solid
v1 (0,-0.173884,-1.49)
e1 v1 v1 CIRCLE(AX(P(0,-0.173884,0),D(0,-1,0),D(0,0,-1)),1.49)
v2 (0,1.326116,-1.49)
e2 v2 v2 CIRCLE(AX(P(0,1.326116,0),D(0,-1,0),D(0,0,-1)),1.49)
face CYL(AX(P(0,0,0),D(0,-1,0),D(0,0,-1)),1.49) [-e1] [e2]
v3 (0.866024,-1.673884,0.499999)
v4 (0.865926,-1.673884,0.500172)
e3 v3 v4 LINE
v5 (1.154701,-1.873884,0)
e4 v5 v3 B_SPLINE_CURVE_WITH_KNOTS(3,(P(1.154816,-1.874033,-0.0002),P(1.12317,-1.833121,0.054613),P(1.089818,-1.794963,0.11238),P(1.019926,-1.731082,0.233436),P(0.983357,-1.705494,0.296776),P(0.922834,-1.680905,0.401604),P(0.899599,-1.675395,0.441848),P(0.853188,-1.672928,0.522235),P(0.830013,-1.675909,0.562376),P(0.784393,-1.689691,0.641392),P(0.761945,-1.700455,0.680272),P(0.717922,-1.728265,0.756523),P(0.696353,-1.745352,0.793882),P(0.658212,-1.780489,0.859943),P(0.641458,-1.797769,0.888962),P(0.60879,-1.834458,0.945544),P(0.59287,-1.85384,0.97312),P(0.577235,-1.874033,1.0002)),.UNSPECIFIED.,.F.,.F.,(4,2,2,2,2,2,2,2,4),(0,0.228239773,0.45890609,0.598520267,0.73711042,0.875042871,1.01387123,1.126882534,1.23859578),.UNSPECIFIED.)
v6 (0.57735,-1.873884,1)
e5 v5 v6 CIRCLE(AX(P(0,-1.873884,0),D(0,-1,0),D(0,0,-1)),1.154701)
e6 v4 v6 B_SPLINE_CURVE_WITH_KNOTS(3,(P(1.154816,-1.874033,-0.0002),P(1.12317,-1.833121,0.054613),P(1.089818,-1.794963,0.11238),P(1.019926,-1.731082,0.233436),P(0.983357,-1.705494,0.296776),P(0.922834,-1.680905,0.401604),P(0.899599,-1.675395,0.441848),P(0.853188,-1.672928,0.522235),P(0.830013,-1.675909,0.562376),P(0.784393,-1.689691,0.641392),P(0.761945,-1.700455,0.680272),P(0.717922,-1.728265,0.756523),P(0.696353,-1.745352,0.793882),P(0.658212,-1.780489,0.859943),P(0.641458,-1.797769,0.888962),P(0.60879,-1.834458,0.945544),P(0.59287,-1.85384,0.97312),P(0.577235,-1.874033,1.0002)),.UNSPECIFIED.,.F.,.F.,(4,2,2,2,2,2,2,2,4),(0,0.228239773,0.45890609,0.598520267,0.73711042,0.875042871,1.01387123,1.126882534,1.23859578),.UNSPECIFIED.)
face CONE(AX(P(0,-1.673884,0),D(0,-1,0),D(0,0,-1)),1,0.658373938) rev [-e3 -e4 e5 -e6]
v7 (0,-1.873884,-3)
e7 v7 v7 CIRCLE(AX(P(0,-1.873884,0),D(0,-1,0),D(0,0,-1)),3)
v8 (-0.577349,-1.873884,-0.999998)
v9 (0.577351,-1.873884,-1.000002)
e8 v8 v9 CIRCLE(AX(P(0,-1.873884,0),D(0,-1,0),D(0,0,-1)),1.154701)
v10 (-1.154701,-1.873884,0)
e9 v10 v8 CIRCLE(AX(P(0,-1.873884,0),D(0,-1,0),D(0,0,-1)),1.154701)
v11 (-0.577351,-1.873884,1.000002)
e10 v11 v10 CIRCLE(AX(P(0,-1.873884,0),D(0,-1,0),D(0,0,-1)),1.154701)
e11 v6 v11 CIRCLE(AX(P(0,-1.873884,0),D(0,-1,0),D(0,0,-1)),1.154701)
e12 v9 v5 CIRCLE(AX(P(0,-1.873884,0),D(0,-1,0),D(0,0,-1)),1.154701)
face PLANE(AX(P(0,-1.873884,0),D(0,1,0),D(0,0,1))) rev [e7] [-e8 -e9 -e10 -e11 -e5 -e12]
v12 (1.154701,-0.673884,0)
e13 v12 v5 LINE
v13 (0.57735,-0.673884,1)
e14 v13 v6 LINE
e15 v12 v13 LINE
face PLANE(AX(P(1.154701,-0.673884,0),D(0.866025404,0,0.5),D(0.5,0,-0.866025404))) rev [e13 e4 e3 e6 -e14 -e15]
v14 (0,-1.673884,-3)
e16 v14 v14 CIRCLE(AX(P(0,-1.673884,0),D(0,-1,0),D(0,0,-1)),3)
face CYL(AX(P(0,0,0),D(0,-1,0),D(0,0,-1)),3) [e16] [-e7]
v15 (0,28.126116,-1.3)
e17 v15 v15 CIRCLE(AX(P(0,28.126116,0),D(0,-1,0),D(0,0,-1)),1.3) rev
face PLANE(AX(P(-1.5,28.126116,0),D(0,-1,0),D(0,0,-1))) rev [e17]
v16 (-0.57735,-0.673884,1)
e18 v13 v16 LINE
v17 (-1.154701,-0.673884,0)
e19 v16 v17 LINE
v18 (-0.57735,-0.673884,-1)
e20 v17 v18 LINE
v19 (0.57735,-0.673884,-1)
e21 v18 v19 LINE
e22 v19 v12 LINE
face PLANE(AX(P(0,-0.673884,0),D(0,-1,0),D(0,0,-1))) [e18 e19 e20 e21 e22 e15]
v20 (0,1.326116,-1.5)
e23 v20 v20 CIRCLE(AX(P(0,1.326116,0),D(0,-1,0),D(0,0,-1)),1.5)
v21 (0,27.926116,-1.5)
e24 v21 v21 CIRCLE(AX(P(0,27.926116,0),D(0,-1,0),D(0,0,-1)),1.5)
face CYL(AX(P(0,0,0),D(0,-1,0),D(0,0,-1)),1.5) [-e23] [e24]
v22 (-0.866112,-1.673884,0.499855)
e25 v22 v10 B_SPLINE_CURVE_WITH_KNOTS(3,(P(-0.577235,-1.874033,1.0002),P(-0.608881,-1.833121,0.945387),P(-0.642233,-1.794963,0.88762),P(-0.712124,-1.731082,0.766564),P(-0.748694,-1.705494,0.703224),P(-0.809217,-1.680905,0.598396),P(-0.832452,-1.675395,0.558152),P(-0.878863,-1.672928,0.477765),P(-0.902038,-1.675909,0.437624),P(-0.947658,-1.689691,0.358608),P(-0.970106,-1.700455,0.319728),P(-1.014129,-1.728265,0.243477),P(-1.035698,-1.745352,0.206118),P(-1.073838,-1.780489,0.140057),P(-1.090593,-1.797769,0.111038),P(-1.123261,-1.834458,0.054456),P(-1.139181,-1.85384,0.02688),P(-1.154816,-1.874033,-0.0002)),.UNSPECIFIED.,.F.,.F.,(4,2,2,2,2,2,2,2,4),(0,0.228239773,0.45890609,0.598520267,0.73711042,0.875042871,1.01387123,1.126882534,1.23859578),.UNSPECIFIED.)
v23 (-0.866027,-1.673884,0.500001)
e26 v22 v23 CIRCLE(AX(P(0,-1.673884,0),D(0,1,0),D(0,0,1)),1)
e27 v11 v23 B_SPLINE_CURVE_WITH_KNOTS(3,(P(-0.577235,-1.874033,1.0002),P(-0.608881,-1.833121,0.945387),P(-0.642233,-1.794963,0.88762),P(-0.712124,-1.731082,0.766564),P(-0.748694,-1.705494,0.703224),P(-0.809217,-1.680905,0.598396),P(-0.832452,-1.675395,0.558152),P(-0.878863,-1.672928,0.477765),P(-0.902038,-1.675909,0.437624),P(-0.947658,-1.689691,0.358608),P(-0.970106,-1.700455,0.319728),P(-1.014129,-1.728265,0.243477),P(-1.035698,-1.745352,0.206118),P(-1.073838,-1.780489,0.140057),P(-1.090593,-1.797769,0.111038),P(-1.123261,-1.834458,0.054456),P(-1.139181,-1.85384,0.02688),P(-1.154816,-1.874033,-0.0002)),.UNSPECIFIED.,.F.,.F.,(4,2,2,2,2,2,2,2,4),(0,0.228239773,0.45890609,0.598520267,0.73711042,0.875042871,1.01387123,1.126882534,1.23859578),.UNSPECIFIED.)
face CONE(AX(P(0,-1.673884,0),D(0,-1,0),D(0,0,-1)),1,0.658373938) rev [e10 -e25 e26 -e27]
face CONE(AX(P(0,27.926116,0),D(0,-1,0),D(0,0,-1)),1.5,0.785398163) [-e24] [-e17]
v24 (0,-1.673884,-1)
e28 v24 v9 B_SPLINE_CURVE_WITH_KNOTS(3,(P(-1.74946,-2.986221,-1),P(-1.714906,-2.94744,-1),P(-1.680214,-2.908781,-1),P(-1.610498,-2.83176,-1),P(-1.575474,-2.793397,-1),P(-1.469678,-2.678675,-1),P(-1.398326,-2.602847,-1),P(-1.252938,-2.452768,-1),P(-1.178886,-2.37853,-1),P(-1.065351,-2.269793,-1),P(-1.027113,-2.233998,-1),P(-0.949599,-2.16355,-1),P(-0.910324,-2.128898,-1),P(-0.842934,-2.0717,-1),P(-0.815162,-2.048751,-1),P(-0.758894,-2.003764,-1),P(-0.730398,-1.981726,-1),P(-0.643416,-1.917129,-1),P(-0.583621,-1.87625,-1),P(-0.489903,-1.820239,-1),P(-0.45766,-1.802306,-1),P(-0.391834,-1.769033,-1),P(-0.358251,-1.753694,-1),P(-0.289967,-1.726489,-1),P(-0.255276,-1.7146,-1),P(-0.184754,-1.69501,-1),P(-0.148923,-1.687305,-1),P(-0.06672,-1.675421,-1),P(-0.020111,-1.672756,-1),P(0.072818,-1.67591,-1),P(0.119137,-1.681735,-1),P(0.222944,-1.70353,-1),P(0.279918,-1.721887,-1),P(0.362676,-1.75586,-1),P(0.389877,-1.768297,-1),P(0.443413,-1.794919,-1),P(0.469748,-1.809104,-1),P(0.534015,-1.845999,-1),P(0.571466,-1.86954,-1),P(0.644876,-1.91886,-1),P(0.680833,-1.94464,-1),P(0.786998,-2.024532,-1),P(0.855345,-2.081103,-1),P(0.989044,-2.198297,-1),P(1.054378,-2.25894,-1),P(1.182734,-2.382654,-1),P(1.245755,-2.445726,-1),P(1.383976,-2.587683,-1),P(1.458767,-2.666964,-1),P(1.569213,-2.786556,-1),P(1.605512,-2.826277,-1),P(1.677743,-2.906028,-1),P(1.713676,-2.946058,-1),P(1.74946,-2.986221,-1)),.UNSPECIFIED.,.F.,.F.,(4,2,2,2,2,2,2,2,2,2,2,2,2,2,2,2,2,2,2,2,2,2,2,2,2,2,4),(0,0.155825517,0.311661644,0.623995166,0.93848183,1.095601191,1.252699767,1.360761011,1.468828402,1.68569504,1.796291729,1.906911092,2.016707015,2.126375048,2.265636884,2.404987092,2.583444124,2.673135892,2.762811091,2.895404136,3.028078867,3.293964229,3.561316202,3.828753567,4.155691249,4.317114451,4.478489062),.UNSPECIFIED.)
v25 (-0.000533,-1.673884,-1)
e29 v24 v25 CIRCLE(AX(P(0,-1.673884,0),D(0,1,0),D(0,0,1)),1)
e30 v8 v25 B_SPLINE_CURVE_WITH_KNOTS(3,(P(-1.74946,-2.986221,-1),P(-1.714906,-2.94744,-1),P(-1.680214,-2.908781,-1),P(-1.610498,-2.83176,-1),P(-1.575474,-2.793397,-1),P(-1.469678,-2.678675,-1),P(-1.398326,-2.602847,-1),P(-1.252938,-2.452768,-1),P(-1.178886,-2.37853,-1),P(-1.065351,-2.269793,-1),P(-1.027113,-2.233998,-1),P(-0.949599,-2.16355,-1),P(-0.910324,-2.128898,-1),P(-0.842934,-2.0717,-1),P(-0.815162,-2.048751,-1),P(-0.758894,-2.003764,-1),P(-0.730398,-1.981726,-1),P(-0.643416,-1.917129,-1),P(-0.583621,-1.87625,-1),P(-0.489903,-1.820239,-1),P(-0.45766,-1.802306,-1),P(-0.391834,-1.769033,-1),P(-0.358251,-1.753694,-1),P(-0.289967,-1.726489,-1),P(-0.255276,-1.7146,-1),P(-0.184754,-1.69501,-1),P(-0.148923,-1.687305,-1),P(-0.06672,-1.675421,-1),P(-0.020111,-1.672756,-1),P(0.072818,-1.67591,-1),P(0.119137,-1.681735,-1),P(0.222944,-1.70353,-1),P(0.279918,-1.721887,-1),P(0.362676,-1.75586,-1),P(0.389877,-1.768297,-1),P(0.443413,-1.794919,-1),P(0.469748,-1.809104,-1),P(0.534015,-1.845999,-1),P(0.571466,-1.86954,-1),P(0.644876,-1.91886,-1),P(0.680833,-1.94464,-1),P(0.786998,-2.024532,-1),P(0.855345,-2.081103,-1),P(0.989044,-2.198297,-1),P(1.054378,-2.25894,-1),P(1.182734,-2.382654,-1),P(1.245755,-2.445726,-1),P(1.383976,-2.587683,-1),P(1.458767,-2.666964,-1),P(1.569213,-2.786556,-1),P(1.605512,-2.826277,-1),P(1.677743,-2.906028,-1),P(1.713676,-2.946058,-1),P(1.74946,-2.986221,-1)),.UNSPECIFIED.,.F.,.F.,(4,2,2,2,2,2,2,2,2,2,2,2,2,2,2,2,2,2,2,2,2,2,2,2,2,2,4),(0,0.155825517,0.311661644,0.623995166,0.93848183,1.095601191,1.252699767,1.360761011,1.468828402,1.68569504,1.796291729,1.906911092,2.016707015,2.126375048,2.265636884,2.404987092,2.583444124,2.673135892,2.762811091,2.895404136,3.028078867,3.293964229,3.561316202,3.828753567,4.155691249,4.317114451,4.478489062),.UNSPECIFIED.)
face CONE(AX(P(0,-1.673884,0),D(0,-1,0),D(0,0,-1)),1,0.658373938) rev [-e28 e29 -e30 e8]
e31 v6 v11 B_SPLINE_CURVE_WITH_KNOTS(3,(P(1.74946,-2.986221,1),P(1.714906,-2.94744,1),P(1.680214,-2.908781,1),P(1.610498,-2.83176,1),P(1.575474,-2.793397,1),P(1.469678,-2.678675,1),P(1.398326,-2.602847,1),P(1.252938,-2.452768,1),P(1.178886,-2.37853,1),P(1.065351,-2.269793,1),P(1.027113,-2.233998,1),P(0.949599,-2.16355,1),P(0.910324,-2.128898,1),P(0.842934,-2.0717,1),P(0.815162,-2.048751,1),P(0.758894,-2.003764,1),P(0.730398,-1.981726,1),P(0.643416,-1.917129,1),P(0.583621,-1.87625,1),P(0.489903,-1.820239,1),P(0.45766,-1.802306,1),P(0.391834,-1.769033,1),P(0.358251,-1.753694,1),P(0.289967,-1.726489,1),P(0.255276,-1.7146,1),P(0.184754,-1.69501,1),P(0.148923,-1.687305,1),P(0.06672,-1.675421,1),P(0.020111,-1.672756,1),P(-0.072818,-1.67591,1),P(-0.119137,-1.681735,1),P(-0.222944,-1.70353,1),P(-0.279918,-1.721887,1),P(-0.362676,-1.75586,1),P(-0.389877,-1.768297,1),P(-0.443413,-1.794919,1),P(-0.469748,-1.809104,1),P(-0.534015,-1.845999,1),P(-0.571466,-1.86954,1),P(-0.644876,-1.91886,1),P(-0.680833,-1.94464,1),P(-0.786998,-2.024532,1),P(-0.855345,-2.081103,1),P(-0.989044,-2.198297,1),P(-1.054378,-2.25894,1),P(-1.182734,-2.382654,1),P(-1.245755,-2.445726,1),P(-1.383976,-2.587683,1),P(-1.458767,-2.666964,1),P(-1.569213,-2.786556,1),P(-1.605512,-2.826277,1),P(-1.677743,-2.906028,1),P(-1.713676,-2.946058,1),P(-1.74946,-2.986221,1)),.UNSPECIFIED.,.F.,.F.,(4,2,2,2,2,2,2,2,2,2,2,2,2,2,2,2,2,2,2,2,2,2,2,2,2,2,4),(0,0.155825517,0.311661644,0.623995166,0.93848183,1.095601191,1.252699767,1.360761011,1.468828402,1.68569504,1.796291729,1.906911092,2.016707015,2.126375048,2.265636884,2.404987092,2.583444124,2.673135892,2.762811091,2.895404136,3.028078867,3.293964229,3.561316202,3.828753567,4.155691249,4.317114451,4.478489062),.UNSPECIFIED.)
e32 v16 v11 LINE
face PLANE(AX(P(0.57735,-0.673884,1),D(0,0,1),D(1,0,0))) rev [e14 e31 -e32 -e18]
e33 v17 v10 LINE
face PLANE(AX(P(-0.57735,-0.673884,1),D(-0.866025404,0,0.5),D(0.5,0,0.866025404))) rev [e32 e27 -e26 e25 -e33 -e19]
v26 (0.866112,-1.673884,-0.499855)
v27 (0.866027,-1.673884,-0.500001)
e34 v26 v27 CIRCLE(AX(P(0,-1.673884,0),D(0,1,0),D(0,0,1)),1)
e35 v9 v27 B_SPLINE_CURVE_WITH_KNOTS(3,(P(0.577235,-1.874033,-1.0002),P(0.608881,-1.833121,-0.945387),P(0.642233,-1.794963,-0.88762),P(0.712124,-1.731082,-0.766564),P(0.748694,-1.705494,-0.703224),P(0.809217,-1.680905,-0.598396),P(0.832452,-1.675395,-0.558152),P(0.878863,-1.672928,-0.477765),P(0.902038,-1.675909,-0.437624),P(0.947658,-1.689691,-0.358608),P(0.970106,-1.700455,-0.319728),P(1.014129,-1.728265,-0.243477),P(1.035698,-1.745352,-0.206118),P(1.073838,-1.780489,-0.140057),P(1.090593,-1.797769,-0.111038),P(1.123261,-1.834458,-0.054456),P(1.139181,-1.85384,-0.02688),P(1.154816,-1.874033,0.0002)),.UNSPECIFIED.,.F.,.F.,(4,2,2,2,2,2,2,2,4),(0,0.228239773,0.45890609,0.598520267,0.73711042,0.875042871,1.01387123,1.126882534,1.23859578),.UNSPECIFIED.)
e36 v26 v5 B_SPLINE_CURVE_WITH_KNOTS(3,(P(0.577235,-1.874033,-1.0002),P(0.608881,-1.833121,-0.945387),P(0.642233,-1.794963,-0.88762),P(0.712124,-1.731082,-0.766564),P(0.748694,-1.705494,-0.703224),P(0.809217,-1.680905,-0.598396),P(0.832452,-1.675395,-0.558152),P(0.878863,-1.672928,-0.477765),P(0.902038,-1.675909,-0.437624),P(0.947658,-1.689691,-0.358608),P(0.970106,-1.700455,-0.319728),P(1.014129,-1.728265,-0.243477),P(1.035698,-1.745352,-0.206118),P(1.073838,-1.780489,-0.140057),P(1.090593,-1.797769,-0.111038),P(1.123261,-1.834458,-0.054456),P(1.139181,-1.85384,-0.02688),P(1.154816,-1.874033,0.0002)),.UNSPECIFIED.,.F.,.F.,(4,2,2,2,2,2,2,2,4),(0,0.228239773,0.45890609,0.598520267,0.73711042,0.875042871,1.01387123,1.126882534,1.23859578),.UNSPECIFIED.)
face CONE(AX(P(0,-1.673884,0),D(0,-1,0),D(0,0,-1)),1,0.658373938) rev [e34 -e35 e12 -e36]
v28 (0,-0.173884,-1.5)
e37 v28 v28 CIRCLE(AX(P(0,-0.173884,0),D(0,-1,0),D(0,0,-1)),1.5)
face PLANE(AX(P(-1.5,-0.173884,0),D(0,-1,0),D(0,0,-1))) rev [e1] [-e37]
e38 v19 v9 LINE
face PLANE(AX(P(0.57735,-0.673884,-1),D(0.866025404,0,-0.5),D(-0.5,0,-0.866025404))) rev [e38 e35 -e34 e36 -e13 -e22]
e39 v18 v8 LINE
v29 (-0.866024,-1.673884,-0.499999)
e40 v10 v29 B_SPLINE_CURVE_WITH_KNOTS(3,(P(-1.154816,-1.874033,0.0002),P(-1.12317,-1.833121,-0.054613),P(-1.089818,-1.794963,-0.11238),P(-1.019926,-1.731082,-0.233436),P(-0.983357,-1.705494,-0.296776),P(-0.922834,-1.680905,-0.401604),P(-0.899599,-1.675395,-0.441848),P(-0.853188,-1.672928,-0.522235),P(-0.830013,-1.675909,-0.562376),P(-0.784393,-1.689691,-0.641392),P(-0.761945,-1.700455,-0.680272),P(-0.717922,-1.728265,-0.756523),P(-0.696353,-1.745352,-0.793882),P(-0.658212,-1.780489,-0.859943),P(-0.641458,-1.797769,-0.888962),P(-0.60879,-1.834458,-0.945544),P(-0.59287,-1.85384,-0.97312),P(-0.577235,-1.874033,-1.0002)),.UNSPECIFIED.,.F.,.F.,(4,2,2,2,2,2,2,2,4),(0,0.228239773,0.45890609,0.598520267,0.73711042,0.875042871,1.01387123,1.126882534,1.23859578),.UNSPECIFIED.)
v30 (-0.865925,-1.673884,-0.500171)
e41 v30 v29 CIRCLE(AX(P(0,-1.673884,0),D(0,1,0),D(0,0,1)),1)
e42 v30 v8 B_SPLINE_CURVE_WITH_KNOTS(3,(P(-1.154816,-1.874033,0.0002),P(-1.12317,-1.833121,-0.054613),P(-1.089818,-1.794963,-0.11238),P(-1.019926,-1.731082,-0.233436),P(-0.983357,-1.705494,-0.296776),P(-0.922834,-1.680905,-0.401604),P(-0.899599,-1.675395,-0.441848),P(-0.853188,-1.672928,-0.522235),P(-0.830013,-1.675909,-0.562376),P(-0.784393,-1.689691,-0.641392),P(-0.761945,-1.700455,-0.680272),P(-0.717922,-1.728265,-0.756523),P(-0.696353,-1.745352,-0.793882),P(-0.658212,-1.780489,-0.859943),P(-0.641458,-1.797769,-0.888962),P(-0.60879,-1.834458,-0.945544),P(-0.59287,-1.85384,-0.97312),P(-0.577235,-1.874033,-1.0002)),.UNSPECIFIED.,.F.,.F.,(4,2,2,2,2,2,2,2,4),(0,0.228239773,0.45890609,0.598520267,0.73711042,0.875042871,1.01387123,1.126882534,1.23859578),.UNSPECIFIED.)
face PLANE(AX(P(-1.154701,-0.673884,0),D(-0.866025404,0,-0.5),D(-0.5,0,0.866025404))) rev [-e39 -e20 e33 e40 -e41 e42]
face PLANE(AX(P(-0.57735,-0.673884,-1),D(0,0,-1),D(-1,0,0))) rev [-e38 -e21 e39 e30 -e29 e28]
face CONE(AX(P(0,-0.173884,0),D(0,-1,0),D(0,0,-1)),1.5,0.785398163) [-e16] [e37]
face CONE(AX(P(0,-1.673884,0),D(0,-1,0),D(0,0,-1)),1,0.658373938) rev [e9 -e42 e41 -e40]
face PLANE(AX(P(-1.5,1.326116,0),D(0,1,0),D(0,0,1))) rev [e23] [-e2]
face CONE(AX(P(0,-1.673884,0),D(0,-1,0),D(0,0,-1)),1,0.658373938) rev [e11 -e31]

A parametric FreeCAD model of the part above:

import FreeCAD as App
import Part
import Sketcher

V = App.Vector
Q = App.Units.Quantity


def edges_at(feature, points):
    """Names of the edges that pass closest to the given points."""
    edges = feature.Shape.Edges
    near = lambda p: min(range(len(edges)), key=lambda i: edges[i].distToShape(Part.Vertex(*p))[0])
    return sorted({f"Edge{near(p) + 1}" for p in points})

doc = App.newDocument("Part")
body = doc.addObject("PartDesign::Body", "Body")

# Sketch on XY plane
sketch1 = doc.addObject("Sketcher::SketchObject", "Sketch")
body.addObject(sketch1)
sketch1.AttachmentSupport = (doc.XY_Plane, [""])
sketch1.MapMode = "FlatFace"
sketch1.addGeometry(Part.LineSegment(V(-3, -1.873884, 0), V(0, -1.873884, 0)), False)
sketch1.addGeometry(Part.LineSegment(V(0, -1.873884, 0), V(0, 28.126116, 0)), False)
sketch1.addGeometry(Part.LineSegment(V(0, 28.126116, 0), V(-1.5, 28.126116, 0)), False)
sketch1.addGeometry(Part.LineSegment(V(-1.5, 28.126116, 0), V(-1.5, 1.326116, 0)), False)
sketch1.addGeometry(Part.LineSegment(V(-1.5, 1.326116, 0), V(-1.49, 1.326116, 0)), False)
sketch1.addGeometry(Part.LineSegment(V(-1.49, 1.326116, 0), V(-1.49, -0.173884, 0)), False)
sketch1.addGeometry(Part.LineSegment(V(-1.49, -0.173884, 0), V(-1.5, -0.173884, 0)), False)
sketch1.addGeometry(Part.LineSegment(V(-1.5, -0.173884, 0), V(-3, -1.673884, 0)), False)
sketch1.addGeometry(Part.LineSegment(V(-3, -1.673884, 0), V(-3, -1.873884, 0)), False)
sketch1.addConstraint(Sketcher.Constraint("Coincident", 0, 2, 1, 1))
sketch1.addConstraint(Sketcher.Constraint("Coincident", 1, 2, 2, 1))
sketch1.addConstraint(Sketcher.Constraint("Coincident", 2, 2, 3, 1))
sketch1.addConstraint(Sketcher.Constraint("Coincident", 3, 2, 4, 1))
sketch1.addConstraint(Sketcher.Constraint("Coincident", 4, 2, 5, 1))
sketch1.addConstraint(Sketcher.Constraint("Coincident", 5, 2, 6, 1))
sketch1.addConstraint(Sketcher.Constraint("Coincident", 6, 2, 7, 1))
sketch1.addConstraint(Sketcher.Constraint("Coincident", 7, 2, 8, 1))
sketch1.addConstraint(Sketcher.Constraint("Coincident", 8, 2, 0, 1))
sketch1.addConstraint(Sketcher.Constraint("Horizontal", 0))
sketch1.addConstraint(Sketcher.Constraint("Vertical", 1))
sketch1.addConstraint(Sketcher.Constraint("Horizontal", 2))
sketch1.addConstraint(Sketcher.Constraint("Vertical", 3))
sketch1.addConstraint(Sketcher.Constraint("Horizontal", 4))
sketch1.addConstraint(Sketcher.Constraint("Vertical", 5))
sketch1.addConstraint(Sketcher.Constraint("Horizontal", 6))
sketch1.addConstraint(Sketcher.Constraint("Vertical", 8))
sketch1.addConstraint(Sketcher.Constraint("PointOnObject", 0, 2, -2))
sketch1.addConstraint(Sketcher.Constraint("Vertical", 3, 2, 6, 2))
sketch1.addConstraint(Sketcher.Constraint("Equal", 2, 5))
sketch1.addConstraint(Sketcher.Constraint("DistanceX", 0, 1, 0, 2, 3.0))
sketch1.addConstraint(Sketcher.Constraint("DistanceY", 1, 1, 1, 2, 30.0))
sketch1.addConstraint(Sketcher.Constraint("Angle", 7, Q("-135 deg")))
sketch1.addConstraint(Sketcher.Constraint("DistanceX", 2, 2, 2, 1, 1.5))
sketch1.addConstraint(Sketcher.Constraint("DistanceY", 3, 2, 3, 1, 26.8))
sketch1.addConstraint(Sketcher.Constraint("DistanceX", 4, 1, 4, 2, 0.01))
sketch1.addConstraint(Sketcher.Constraint("DistanceY", 0, 2, -1, 1, 1.873884))
revolution = doc.addObject("PartDesign::Revolution", "Revolution")
body.addObject(revolution)
revolution.Profile = sketch1
revolution.ReferenceAxis = (sketch1, ["V_Axis"])
revolution.Angle = 360
doc.recompute()

chamfer = doc.addObject("PartDesign::Chamfer", "Chamfer")
body.addObject(chamfer)
chamfer.Base = (revolution, edges_at(revolution, [(1.5, 28.126, 0)]))
chamfer.Size = 0.2

# Sketch on XZ plane
sketch2 = doc.addObject("Sketcher::SketchObject", "Sketch001")
body.addObject(sketch2)
sketch2.AttachmentSupport = (doc.XZ_Plane, [""])
sketch2.MapMode = "FlatFace"
sketch2.AttachmentOffset = App.Placement(V(0, 0, 1.873884), App.Rotation())
sketch2.addGeometry(Part.LineSegment(V(1.154701, 0, 0), V(0.57735, 1, 0)), False)
sketch2.addGeometry(Part.LineSegment(V(0.57735, 1, 0), V(-0.57735, 1, 0)), False)
sketch2.addGeometry(Part.LineSegment(V(-0.57735, 1, 0), V(-1.154701, 0, 0)), False)
sketch2.addGeometry(Part.LineSegment(V(-1.154701, 0, 0), V(-0.57735, -1, 0)), False)
sketch2.addGeometry(Part.LineSegment(V(-0.57735, -1, 0), V(0.57735, -1, 0)), False)
sketch2.addGeometry(Part.LineSegment(V(0.57735, -1, 0), V(1.154701, 0, 0)), False)
sketch2.addConstraint(Sketcher.Constraint("Coincident", 0, 2, 1, 1))
sketch2.addConstraint(Sketcher.Constraint("Coincident", 1, 2, 2, 1))
sketch2.addConstraint(Sketcher.Constraint("Coincident", 2, 2, 3, 1))
sketch2.addConstraint(Sketcher.Constraint("Coincident", 3, 2, 4, 1))
sketch2.addConstraint(Sketcher.Constraint("Coincident", 4, 2, 5, 1))
sketch2.addConstraint(Sketcher.Constraint("Coincident", 5, 2, 0, 1))
sketch2.addConstraint(Sketcher.Constraint("Horizontal", 1))
sketch2.addConstraint(Sketcher.Constraint("Horizontal", 4))
sketch2.addConstraint(Sketcher.Constraint("Symmetric", 0, 2, 3, 2, -1, 1))
sketch2.addConstraint(Sketcher.Constraint("Symmetric", 2, 2, 5, 2, -1, 1))
sketch2.addConstraint(Sketcher.Constraint("PointOnObject", 2, 2, -1))
sketch2.addConstraint(Sketcher.Constraint("Parallel", 2, 5))
sketch2.addConstraint(Sketcher.Constraint("Vertical", 1, 2, 3, 2))
sketch2.addConstraint(Sketcher.Constraint("Angle", 0, Q("120 deg")))
sketch2.addConstraint(Sketcher.Constraint("DistanceY", -1, 1, 0, 2, 1.0))
sketch2.addConstraint(Sketcher.Constraint("DistanceX", 1, 2, 1, 1, 1.154701))
pocket1 = doc.addObject("PartDesign::Pocket", "Pocket")
body.addObject(pocket1)
pocket1.Profile = sketch2
pocket1.Length = 1.2

# Sketch on XZ plane
sketch3 = doc.addObject("Sketcher::SketchObject", "Sketch002")
body.addObject(sketch3)
sketch3.AttachmentSupport = (doc.XZ_Plane, [""])
sketch3.MapMode = "FlatFace"
sketch3.AttachmentOffset = App.Placement(V(0, 0, 1.673884), App.Rotation())
sketch3.addGeometry(Part.Circle(V(0, 0, 0), V(0, 0, 1), 1), False)
sketch3.addConstraint(Sketcher.Constraint("Coincident", 0, 3, -1, 1))
sketch3.addConstraint(Sketcher.Constraint("Diameter", 0, 2.0))

# Sketch on XZ plane
sketch4 = doc.addObject("Sketcher::SketchObject", "Sketch003")
body.addObject(sketch4)
sketch4.AttachmentSupport = (doc.XZ_Plane, [""])
sketch4.MapMode = "FlatFace"
sketch4.AttachmentOffset = App.Placement(V(0, 0, 1.873884), App.Rotation())
sketch4.addGeometry(Part.Circle(V(0, 0, 0), V(0, 0, 1), 1.154701), False)
sketch4.addConstraint(Sketcher.Constraint("Coincident", 0, 3, -1, 1))
sketch4.addConstraint(Sketcher.Constraint("Diameter", 0, 2.309401))

subtractiveloft = doc.addObject("PartDesign::SubtractiveLoft", "SubtractiveLoft")
body.addObject(subtractiveloft)
subtractiveloft.Profile = sketch3
subtractiveloft.Sections = [sketch4]

doc.recompute()
